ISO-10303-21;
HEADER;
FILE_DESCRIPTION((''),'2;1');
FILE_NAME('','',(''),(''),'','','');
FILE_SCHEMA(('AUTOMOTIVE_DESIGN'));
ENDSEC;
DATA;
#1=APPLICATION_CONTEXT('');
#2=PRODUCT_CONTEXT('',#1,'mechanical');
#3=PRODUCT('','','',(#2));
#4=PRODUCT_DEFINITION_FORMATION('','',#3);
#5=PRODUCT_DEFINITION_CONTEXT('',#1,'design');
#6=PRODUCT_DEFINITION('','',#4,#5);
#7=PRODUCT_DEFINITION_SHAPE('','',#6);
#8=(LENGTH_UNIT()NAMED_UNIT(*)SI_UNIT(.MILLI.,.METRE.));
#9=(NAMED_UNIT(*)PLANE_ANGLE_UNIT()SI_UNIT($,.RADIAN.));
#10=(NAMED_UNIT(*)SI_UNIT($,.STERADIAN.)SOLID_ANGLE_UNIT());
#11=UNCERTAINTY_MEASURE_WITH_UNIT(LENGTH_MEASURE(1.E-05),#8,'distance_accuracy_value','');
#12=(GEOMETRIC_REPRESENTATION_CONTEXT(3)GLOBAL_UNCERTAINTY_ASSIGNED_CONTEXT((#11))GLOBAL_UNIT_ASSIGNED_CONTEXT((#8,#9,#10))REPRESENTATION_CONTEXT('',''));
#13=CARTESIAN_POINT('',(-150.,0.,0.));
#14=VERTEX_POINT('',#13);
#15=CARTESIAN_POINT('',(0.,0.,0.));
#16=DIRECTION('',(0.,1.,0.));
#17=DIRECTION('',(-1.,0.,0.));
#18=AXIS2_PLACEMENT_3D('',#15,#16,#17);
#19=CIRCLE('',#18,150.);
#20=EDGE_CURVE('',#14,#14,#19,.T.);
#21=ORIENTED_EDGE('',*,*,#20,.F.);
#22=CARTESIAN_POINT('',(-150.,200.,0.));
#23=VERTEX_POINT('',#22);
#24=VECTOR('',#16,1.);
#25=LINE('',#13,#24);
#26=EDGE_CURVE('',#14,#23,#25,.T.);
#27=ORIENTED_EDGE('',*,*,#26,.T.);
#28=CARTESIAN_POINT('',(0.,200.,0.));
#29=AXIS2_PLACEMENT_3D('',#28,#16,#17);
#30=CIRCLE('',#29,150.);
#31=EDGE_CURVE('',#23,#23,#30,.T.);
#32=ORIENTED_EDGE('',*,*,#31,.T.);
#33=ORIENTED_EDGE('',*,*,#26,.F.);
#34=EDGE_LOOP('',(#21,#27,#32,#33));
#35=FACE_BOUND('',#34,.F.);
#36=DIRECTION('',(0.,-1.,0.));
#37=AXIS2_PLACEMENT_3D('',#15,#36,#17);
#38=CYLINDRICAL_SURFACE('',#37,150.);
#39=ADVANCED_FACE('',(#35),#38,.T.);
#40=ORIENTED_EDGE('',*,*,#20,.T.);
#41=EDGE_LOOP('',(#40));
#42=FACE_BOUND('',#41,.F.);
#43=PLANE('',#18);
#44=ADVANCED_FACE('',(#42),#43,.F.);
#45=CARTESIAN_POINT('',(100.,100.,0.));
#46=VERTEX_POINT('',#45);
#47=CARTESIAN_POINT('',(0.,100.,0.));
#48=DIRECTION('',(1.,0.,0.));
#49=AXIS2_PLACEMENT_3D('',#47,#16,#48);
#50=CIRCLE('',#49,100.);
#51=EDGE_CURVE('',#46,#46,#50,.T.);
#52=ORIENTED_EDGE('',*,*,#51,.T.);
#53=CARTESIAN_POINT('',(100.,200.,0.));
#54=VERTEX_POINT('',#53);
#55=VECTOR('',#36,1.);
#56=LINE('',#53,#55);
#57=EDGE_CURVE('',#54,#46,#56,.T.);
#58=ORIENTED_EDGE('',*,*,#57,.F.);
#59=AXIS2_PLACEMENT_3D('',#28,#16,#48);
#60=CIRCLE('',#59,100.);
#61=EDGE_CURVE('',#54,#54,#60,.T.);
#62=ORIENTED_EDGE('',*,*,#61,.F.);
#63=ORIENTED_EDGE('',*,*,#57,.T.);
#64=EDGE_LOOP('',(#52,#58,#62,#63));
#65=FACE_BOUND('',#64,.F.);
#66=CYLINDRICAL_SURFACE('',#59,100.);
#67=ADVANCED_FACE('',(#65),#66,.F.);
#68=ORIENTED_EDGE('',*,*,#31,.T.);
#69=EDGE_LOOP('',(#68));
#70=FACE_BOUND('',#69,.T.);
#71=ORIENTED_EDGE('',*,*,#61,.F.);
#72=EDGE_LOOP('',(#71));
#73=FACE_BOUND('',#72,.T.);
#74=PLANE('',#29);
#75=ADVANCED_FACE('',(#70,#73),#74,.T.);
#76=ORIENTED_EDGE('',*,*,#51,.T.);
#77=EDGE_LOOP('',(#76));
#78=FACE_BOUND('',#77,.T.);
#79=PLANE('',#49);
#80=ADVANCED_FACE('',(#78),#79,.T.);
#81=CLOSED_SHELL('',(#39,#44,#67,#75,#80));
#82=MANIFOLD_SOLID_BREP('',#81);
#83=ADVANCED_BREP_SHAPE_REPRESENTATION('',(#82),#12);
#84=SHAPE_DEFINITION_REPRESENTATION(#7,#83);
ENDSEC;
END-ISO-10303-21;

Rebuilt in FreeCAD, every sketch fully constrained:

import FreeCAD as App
import Part
import Sketcher

V = App.Vector
Q = App.Units.Quantity

doc = App.newDocument("Part")
params = doc.addObject("Spreadsheet::Sheet", "Params")
for row, (alias, value) in enumerate([
    ("sketch1_diameter", "300 mm"),
    ("pad1_length", "200 mm"),
    ("sketch2_diameter", "200 mm"),
    ("pocket1_length", "100 mm"),
], start=1):
    params.set(f"A{row}", alias)
    params.set(f"B{row}", "=" + value)
    params.setAlias(f"B{row}", alias)

body = doc.addObject("PartDesign::Body", "Body")

sketch1 = body.newObject("Sketcher::SketchObject", "Sketch")
sketch1.AttachmentSupport = (doc.getObject("XZ_Plane"), [""])
sketch1.MapMode = "FlatFace"
sketch1.addGeometry(Part.Circle(V(0, 0, 0), V(0, 0, 1), 150), False)
sketch1.addConstraint([
    Sketcher.Constraint("Coincident", 0, 3, -1, 1),
    Sketcher.Constraint("Diameter", 0, Q("300 mm")),
])
sketch1.setExpression("Constraints[1]", "Params.sketch1_diameter")
pad1 = body.newObject("PartDesign::Pad", "Pad")
pad1.Profile = sketch1
pad1.setExpression("Length", "Params.pad1_length")
pad1.Reversed = True

sketch2 = body.newObject("Sketcher::SketchObject", "Sketch001")
sketch2.AttachmentSupport = (doc.getObject("XZ_Plane"), [""])
sketch2.MapMode = "FlatFace"
sketch2.AttachmentOffset = App.Placement(V(0, 0, -200), App.Rotation())
sketch2.addGeometry(Part.Circle(V(0, 0, 0), V(0, 0, 1), 100), False)
sketch2.addConstraint([
    Sketcher.Constraint("Coincident", 0, 3, -1, 1),
    Sketcher.Constraint("Diameter", 0, Q("200 mm")),
])
sketch2.setExpression("Constraints[1]", "Params.sketch2_diameter")
pocket1 = body.newObject("PartDesign::Pocket", "Pocket")
pocket1.Profile = sketch2
pocket1.setExpression("Length", "Params.pocket1_length")
pocket1.Reversed = True

doc.recompute()
